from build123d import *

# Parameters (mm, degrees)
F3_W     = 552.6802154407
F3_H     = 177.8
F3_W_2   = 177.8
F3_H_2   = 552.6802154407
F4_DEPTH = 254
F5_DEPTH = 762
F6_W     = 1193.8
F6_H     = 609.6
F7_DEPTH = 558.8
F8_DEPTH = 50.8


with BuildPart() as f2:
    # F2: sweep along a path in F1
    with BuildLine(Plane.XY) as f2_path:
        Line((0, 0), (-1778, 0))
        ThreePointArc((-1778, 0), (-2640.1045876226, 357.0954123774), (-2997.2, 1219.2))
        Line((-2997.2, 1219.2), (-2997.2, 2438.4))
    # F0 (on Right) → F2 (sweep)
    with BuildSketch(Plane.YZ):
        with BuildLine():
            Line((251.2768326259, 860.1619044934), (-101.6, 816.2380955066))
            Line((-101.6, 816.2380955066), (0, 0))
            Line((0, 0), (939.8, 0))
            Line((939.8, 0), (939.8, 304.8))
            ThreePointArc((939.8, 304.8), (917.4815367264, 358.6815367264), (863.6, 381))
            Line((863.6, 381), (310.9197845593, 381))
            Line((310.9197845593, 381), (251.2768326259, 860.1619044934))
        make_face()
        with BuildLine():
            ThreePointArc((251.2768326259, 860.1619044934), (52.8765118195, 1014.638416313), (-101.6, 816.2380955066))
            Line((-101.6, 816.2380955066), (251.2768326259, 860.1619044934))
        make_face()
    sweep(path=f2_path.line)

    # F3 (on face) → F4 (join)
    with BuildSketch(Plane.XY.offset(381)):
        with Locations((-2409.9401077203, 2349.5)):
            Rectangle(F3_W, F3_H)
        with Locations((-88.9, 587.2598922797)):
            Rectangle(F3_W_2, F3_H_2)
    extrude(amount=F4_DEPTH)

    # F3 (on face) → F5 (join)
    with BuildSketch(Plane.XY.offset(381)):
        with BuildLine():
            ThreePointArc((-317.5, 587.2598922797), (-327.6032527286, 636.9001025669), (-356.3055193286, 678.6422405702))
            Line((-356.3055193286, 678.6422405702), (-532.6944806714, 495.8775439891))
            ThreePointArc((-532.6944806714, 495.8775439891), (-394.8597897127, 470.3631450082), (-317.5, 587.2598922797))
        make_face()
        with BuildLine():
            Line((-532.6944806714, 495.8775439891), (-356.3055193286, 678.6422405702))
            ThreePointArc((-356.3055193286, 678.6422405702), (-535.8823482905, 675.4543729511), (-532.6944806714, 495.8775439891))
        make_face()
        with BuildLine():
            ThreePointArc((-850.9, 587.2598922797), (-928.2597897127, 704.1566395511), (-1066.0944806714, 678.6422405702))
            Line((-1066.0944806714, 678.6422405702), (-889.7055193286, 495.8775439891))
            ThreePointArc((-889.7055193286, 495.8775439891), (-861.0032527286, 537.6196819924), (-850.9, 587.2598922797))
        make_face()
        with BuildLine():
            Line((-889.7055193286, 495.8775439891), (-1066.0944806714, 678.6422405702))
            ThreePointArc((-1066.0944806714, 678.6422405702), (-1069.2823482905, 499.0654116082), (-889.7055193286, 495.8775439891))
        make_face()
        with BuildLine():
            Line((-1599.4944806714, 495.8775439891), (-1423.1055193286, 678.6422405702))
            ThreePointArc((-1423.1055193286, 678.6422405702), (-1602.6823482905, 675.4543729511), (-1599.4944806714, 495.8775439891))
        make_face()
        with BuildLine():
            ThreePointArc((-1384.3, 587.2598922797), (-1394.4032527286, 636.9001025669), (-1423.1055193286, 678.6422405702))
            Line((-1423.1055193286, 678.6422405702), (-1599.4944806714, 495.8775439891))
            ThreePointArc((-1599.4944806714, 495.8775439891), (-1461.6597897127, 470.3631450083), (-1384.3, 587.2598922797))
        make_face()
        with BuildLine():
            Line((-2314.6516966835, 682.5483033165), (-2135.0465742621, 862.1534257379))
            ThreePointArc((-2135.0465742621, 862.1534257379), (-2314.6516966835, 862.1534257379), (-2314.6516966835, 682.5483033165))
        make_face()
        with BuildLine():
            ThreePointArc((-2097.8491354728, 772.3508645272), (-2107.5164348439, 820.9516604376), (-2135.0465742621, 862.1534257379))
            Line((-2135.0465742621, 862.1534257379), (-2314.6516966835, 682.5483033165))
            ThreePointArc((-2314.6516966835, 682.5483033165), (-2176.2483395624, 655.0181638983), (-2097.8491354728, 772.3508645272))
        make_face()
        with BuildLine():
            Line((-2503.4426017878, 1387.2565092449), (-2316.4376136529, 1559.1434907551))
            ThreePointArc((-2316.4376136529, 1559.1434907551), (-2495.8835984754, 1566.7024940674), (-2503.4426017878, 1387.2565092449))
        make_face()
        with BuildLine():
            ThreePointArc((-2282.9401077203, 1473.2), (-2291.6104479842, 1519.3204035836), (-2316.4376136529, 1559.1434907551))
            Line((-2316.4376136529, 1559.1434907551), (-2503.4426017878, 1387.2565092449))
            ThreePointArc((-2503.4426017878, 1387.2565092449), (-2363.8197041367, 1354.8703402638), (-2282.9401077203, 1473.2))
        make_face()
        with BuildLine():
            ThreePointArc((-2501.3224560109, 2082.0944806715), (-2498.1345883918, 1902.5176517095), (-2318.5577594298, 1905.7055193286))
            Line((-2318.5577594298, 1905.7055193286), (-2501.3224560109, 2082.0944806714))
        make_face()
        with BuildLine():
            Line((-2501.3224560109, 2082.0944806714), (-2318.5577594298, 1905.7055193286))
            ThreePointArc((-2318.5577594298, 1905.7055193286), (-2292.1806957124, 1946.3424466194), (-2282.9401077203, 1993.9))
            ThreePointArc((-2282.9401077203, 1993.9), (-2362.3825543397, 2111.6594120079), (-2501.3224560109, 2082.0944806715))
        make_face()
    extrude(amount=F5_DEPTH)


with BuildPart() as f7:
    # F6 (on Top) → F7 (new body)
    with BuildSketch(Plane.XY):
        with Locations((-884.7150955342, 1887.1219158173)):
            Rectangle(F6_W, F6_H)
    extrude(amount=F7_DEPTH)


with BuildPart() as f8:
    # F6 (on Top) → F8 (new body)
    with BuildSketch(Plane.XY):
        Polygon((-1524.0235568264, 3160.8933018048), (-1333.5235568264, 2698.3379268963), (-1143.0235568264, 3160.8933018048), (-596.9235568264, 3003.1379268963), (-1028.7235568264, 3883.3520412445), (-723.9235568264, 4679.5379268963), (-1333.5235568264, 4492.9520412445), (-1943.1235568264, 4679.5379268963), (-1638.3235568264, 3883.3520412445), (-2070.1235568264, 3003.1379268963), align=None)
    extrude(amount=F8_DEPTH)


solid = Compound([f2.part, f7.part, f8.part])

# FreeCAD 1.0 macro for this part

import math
import FreeCAD as App
import Part
import Sketcher

V = App.Vector
Q = App.Units.Quantity

doc = App.newDocument("Part")
body = doc.addObject("PartDesign::Body", "Body")

# Sketch on YZ plane
sketch1 = body.newObject("Sketcher::SketchObject", "Sketch")
sketch1.AttachmentSupport = (doc.getObject("YZ_Plane"), [""])
sketch1.MapMode = "FlatFace"
sketch1.addGeometry([
    Part.LineSegment(V(-102, 816, 0), V(0, 0, 0)),  # 0
    Part.LineSegment(V(0, 0, 0), V(940, 0, 0)),  # 1
    Part.LineSegment(V(940, 0, 0), V(940, 305, 0)),  # 2
    Part.ArcOfCircle(Part.Circle(V(864, 305, 0), V(0, 0, 1), 76), math.radians(0), math.radians(90)),  # 3
    Part.LineSegment(V(864, 381, 0), V(311, 381, 0)),  # 4
    Part.LineSegment(V(311, 381, 0), V(251, 860, 0)),  # 5
    Part.ArcOfCircle(Part.Circle(V(75, 838, 0), V(0, 0, 1), 178), math.radians(7), math.radians(187)),  # 6
], False)
sketch1.addConstraint([
    Sketcher.Constraint("Coincident", 0, 2, 1, 1),
    Sketcher.Constraint("Coincident", 1, 2, 2, 1),
    Sketcher.Constraint("Tangent", 2, 2, 3, 1),
    Sketcher.Constraint("Tangent", 3, 2, 4, 1),
    Sketcher.Constraint("Coincident", 4, 2, 5, 1),
    Sketcher.Constraint("Tangent", 5, 2, 6, 1),
    Sketcher.Constraint("Tangent", 6, 2, 0, 1),
    Sketcher.Constraint("Horizontal", 1),
    Sketcher.Constraint("Vertical", 2),
    Sketcher.Constraint("Horizontal", 4),
    Sketcher.Constraint("Coincident", 0, 2, -1, 1),
    Sketcher.Constraint("Parallel", 0, 5),
    Sketcher.Constraint("Radius", 3, Q("3 in")),
    Sketcher.Constraint("Radius", 6, Q("7 in")),
    Sketcher.Constraint("DistanceX", 1, 1, 1, 2, Q("37 in")),
    Sketcher.Constraint("DistanceY", 2, 1, 2, 2, Q("12 in")),
    Sketcher.Constraint("DistanceY", -1, 1, 6, 3, Q("33 in")),
    Sketcher.Constraint("DistanceX", 6, 2, -1, 1, Q("4 in")),
])

# Sketch on XY plane
sketch2 = body.newObject("Sketcher::SketchObject", "Sketch001")
sketch2.AttachmentSupport = (doc.getObject("XY_Plane"), [""])
sketch2.MapMode = "FlatFace"
sketch2.addGeometry([
    Part.LineSegment(V(0, 0, 0), V(-1778, 0, 0)),
    Part.ArcOfCircle(Part.Circle(V(-1778, 1219, 0), V(0, 0, 1), 1219), math.radians(180), math.radians(270)),
    Part.LineSegment(V(-2997, 1219, 0), V(-2997, 2438, 0)),
], False)
sketch2.addConstraint([
    Sketcher.Constraint("Coincident", 0, 2, 1, 2),
    Sketcher.Constraint("Coincident", 1, 1, 2, 1),
    Sketcher.Constraint("Horizontal", 0),
    Sketcher.Constraint("Vertical", 2),
    Sketcher.Constraint("Coincident", 0, 1, -1, 1),
    Sketcher.Constraint("Vertical", 1, 3, 0, 2),
    Sketcher.Constraint("Radius", 1, Q("48 in")),
    Sketcher.Constraint("DistanceX", 0, 2, 0, 1, Q("70 in")),
    Sketcher.Constraint("DistanceY", 2, 1, 2, 2, Q("48 in")),
    Sketcher.Constraint("DistanceY", -1, 1, 2, 2, Q("96 in")),
])
doc.recompute()

additivepipe = body.newObject("PartDesign::AdditivePipe", "AdditivePipe")
additivepipe.Profile = sketch1
additivepipe.Spine = (sketch2, ["Edge1", "Edge2", "Edge3"])

# Sketch on XY plane
sketch3 = body.newObject("Sketcher::SketchObject", "Sketch002")
sketch3.AttachmentSupport = (doc.getObject("XY_Plane"), [""])
sketch3.MapMode = "FlatFace"
sketch3.AttachmentOffset = App.Placement(V(0, 0, 15 * 25.4), App.Rotation())
sketch3.addGeometry([
    Part.LineSegment(V(-2686, 2438, 0), V(-2686, 2261, 0)),  # 0
    Part.LineSegment(V(-2686, 2261, 0), V(-2134, 2261, 0)),  # 1
    Part.LineSegment(V(-2134, 2261, 0), V(-2134, 2438, 0)),  # 2
    Part.LineSegment(V(-2134, 2438, 0), V(-2686, 2438, 0)),  # 3
    Part.LineSegment(V(-178, 864, 0), V(-178, 311, 0)),  # 4
    Part.LineSegment(V(-178, 311, 0), V(0, 311, 0)),  # 5
    Part.LineSegment(V(0, 311, 0), V(0, 864, 0)),  # 6
    Part.LineSegment(V(0, 864, 0), V(-178, 864, 0)),  # 7
], False)
sketch3.addConstraint([
    Sketcher.Constraint("Coincident", 0, 2, 1, 1),
    Sketcher.Constraint("Coincident", 1, 2, 2, 1),
    Sketcher.Constraint("Coincident", 2, 2, 3, 1),
    Sketcher.Constraint("Coincident", 3, 2, 0, 1),
    Sketcher.Constraint("Coincident", 4, 2, 5, 1),
    Sketcher.Constraint("Coincident", 5, 2, 6, 1),
    Sketcher.Constraint("Coincident", 6, 2, 7, 1),
    Sketcher.Constraint("Coincident", 7, 2, 4, 1),
    Sketcher.Constraint("Vertical", 0),
    Sketcher.Constraint("Horizontal", 1),
    Sketcher.Constraint("Vertical", 2),
    Sketcher.Constraint("Horizontal", 3),
    Sketcher.Constraint("Vertical", 4),
    Sketcher.Constraint("Horizontal", 5),
    Sketcher.Constraint("Vertical", 6),
    Sketcher.Constraint("Horizontal", 7),
    Sketcher.Constraint("PointOnObject", 5, 2, -2),
    Sketcher.Constraint("Equal", 7, 0),
    Sketcher.Constraint("Equal", 3, 4),
    Sketcher.Constraint("DistanceX", 5, 1, 5, 2, Q("7 in")),
    Sketcher.Constraint("DistanceY", -1, 1, 0, 2, Q("89 in")),
    Sketcher.Constraint("DistanceX", 1, 2, -1, 1, Q("84 in")),
    Sketcher.Constraint("DistanceY", -1, 1, 6, 2, Q("34 in")),
    Sketcher.Constraint("DistanceX", 1, 1, 1, 2, Q("552.680215 mm")),
])
pad1 = body.newObject("PartDesign::Pad", "Pad")
pad1.Profile = sketch3
pad1.Length = Q("10 in")

# Sketch on XY plane
sketch4 = body.newObject("Sketcher::SketchObject", "Sketch003")
sketch4.AttachmentSupport = (doc.getObject("XY_Plane"), [""])
sketch4.MapMode = "FlatFace"
sketch4.AttachmentOffset = App.Placement(V(0, 0, 15 * 25.4), App.Rotation())
sketch4.addGeometry([
    Part.Circle(V(-444, 587, 0), V(0, 0, 1), 127),  # 0
    Part.Circle(V(-978, 587, 0), V(0, 0, 1), 127),  # 1
    Part.Circle(V(-1511, 587, 0), V(0, 0, 1), 127),  # 2
    Part.Circle(V(-2225, 772, 0), V(0, 0, 1), 127),  # 3
    Part.ArcOfCircle(Part.Circle(V(-2410, 1473, 0), V(0, 0, 1), 127), math.radians(43), math.radians(360)),  # 4
    Part.ArcOfCircle(Part.Circle(V(-2410, 1473, 0), V(0, 0, 1), 127), math.radians(0), math.radians(43)),  # 5
    Part.ArcOfCircle(Part.Circle(V(-2410, 1994, 0), V(0, 0, 1), 127), math.radians(136), math.radians(316)),  # 6
    Part.ArcOfCircle(Part.Circle(V(-2410, 1994, 0), V(0, 0, 1), 127), math.radians(-44), math.radians(136)),  # 7
], False)
sketch4.addConstraint([
    Sketcher.Constraint("Tangent", 4, 1, 5, 2),
    Sketcher.Constraint("Coincident", 5, 1, 4, 2),
    Sketcher.Constraint("Tangent", 6, 1, 7, 2),
    Sketcher.Constraint("Coincident", 7, 1, 6, 2),
    Sketcher.Constraint("Equal", 0, 1),
    Sketcher.Constraint("Equal", 1, 2),
    Sketcher.Constraint("Equal", 2, 3),
    Sketcher.Constraint("Equal", 3, 4),
    Sketcher.Constraint("Equal", 5, 6),
    Sketcher.Constraint("Horizontal", 0, 3, 1, 3),
    Sketcher.Constraint("Horizontal", 1, 3, 2, 3),
    Sketcher.Constraint("Horizontal", 4, 3, 5, 1),
    Sketcher.Constraint("Vertical", 5, 3, 6, 3),
    Sketcher.Constraint("Diameter", 0, Q("10 in")),
    Sketcher.Constraint("DistanceY", -1, 1, 4, 3, Q("58 in")),
    Sketcher.Constraint("DistanceX", 1, 3, 0, 3, Q("21 in")),
    Sketcher.Constraint("DistanceX", 2, 3, 1, 3, Q("21 in")),
    Sketcher.Constraint("DistanceX", 0, 3, -1, 1, Q("17.5 in")),
    Sketcher.Constraint("DistanceY", -1, 1, 6, 3, Q("78.5 in")),
    Sketcher.Constraint("DistanceY", -1, 1, 4, 1, Q("1559.143491 mm")),
    Sketcher.Constraint("DistanceY", -1, 1, 6, 1, Q("2082.094481 mm")),
    Sketcher.Constraint("DistanceX", 7, 1, -1, 1, Q("2318.557759 mm")),
    Sketcher.Constraint("DistanceY", -1, 1, 7, 1, Q("1905.705519 mm")),
    Sketcher.Constraint("DistanceX", 4, 1, 3, 3, Q("91.588478 mm")),
    Sketcher.Constraint("DistanceY", -1, 1, 0, 3, Q("587.259892 mm")),
    Sketcher.Constraint("DistanceY", -1, 1, 3, 3, Q("772.350865 mm")),
])
pad2 = body.newObject("PartDesign::Pad", "Pad001")
pad2.Profile = sketch4
pad2.Length = Q("30 in")
body2 = doc.addObject("PartDesign::Body", "Body001")

# Sketch on XY plane
sketch5 = body2.newObject("Sketcher::SketchObject", "Sketch004")
sketch5.AttachmentSupport = (doc.getObject("XY_Plane001"), [""])
sketch5.MapMode = "FlatFace"
sketch5.addGeometry([
    Part.LineSegment(V(-1482, 2192, 0), V(-1482, 1582, 0)),
    Part.LineSegment(V(-1482, 1582, 0), V(-288, 1582, 0)),
    Part.LineSegment(V(-288, 1582, 0), V(-288, 2192, 0)),
    Part.LineSegment(V(-288, 2192, 0), V(-1482, 2192, 0)),
], False)
sketch5.addConstraint([
    Sketcher.Constraint("Coincident", 0, 2, 1, 1),
    Sketcher.Constraint("Coincident", 1, 2, 2, 1),
    Sketcher.Constraint("Coincident", 2, 2, 3, 1),
    Sketcher.Constraint("Coincident", 3, 2, 0, 1),
    Sketcher.Constraint("Vertical", 0),
    Sketcher.Constraint("Horizontal", 1),
    Sketcher.Constraint("Vertical", 2),
    Sketcher.Constraint("Horizontal", 3),
    Sketcher.Constraint("DistanceX", 1, 1, 1, 2, Q("47 in")),
    Sketcher.Constraint("DistanceY", 0, 2, 0, 1, Q("24 in")),
    Sketcher.Constraint("DistanceX", 0, 2, -1, 1, Q("1481.615096 mm")),
    Sketcher.Constraint("DistanceY", -1, 1, 0, 2, Q("1582.321916 mm")),
])
pad3 = body2.newObject("PartDesign::Pad", "Pad002")
pad3.Profile = sketch5
pad3.Length = Q("22 in")
body3 = doc.addObject("PartDesign::Body", "Body002")

# Sketch on XY plane
sketch6 = body3.newObject("Sketcher::SketchObject", "Sketch005")
sketch6.AttachmentSupport = (doc.getObject("XY_Plane002"), [""])
sketch6.MapMode = "FlatFace"
sketch6.addGeometry([
    Part.LineSegment(V(-1524, 3161, 0), V(-1334, 2698, 0)),  # 0
    Part.LineSegment(V(-1334, 2698, 0), V(-1143, 3161, 0)),  # 1
    Part.LineSegment(V(-1143, 3161, 0), V(-597, 3003, 0)),  # 2
    Part.LineSegment(V(-597, 3003, 0), V(-1029, 3883, 0)),  # 3
    Part.LineSegment(V(-1029, 3883, 0), V(-724, 4680, 0)),  # 4
    Part.LineSegment(V(-724, 4680, 0), V(-1334, 4493, 0)),  # 5
    Part.LineSegment(V(-1334, 4493, 0), V(-1943, 4680, 0)),  # 6
    Part.LineSegment(V(-1943, 4680, 0), V(-1638, 3883, 0)),  # 7
    Part.LineSegment(V(-1638, 3883, 0), V(-2070, 3003, 0)),  # 8
    Part.LineSegment(V(-2070, 3003, 0), V(-1524, 3161, 0)),  # 9
], False)
sketch6.addConstraint([
    Sketcher.Constraint("Coincident", 0, 2, 1, 1),
    Sketcher.Constraint("Coincident", 1, 2, 2, 1),
    Sketcher.Constraint("Coincident", 2, 2, 3, 1),
    Sketcher.Constraint("Coincident", 3, 2, 4, 1),
    Sketcher.Constraint("Coincident", 4, 2, 5, 1),
    Sketcher.Constraint("Coincident", 5, 2, 6, 1),
    Sketcher.Constraint("Coincident", 6, 2, 7, 1),
    Sketcher.Constraint("Coincident", 7, 2, 8, 1),
    Sketcher.Constraint("Coincident", 8, 2, 9, 1),
    Sketcher.Constraint("Coincident", 9, 2, 0, 1),
    Sketcher.Constraint("Horizontal", 4, 2, 6, 2),
    Sketcher.Constraint("Horizontal", 3, 2, 7, 2),
    Sketcher.Constraint("Horizontal", 2, 2, 8, 2),
    Sketcher.Constraint("Horizontal", 1, 2, 9, 2),
    Sketcher.Constraint("Vertical", 0, 2, 5, 2),
    Sketcher.Constraint("Equal", 0, 1),
    Sketcher.Constraint("Equal", 5, 6),
    Sketcher.Constraint("Equal", 4, 7),
    Sketcher.Constraint("Equal", 3, 8),
    Sketcher.Constraint("DistanceX", 0, 2, 2, 2, Q("29 in")),
    Sketcher.Constraint("DistanceY", 0, 2, 2, 2, Q("12 in")),
    Sketcher.Constraint("DistanceX", 3, 2, 2, 2, Q("17 in")),
    Sketcher.Constraint("DistanceX", 3, 2, 4, 2, Q("12 in")),
    Sketcher.Constraint("DistanceY", 2, 2, 4, 2, Q("66 in")),
    Sketcher.Constraint("DistanceY", 3, 2, 5, 2, Q("24 in")),
    Sketcher.Constraint("DistanceX", 9, 2, 1, 2, Q("15 in")),
    Sketcher.Constraint("DistanceY", -1, 1, 1, 2, Q("3160.893302 mm")),
    Sketcher.Constraint("Distance", 4, Q("852.534459 mm")),
    Sketcher.Constraint("DistanceY", -1, 1, 3, 2, Q("3883.352041 mm")),
    Sketcher.Constraint("DistanceX", 0, 2, -1, 1, Q("1333.523557 mm")),
])
pad4 = body3.newObject("PartDesign::Pad", "Pad003")
pad4.Profile = sketch6
pad4.Length = Q("2 in")

doc.recompute()
